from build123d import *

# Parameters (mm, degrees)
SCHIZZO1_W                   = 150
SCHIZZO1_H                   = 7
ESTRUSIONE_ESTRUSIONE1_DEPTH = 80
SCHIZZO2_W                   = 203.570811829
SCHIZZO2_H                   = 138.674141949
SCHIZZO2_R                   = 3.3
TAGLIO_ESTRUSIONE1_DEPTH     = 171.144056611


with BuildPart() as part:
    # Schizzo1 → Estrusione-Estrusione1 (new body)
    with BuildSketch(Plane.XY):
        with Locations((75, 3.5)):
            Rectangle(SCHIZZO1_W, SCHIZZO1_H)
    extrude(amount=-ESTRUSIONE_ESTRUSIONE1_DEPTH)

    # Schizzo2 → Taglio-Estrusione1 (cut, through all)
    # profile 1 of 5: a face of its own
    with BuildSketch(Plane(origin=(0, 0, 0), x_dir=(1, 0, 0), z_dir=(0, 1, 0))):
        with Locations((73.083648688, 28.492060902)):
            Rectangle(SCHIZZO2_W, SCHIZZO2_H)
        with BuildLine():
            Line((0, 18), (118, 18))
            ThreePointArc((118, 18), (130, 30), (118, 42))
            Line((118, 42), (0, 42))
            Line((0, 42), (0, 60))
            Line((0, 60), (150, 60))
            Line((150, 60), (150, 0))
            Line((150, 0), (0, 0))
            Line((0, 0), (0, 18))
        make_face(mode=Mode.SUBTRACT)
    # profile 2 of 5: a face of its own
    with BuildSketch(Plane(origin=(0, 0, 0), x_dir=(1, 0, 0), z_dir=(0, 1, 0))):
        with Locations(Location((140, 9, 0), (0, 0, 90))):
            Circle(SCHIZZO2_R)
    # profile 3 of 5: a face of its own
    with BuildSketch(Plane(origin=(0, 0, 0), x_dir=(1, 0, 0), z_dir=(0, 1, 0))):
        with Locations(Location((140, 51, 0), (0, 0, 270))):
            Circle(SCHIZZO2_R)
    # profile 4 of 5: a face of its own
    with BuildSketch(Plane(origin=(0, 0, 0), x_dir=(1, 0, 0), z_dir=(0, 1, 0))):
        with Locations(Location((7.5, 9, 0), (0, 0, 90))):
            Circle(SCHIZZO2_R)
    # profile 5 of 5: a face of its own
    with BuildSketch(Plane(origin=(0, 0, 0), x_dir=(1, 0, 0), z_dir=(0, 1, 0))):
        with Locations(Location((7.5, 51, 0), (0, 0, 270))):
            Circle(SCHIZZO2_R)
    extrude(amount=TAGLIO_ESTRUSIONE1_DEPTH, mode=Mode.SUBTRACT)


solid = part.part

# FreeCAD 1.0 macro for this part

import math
import FreeCAD as App
import Part
import Sketcher

doc = App.newDocument("Part")
body = doc.addObject("PartDesign::Body", "Body")

sketch1 = doc.addObject("Sketcher::SketchObject", "Sketch")
body.addObject(sketch1)
sketch1.AttachmentSupport = (doc.XY_Plane, [""])
sketch1.MapMode = "FlatFace"
sketch1.addGeometry(Part.LineSegment(App.Vector(0, 7, 0), App.Vector(0, 0, 0)), False)
sketch1.addGeometry(Part.LineSegment(App.Vector(0, 0, 0), App.Vector(150, 0, 0)), False)
sketch1.addGeometry(Part.LineSegment(App.Vector(150, 0, 0), App.Vector(150, 7, 0)), False)
sketch1.addGeometry(Part.LineSegment(App.Vector(150, 7, 0), App.Vector(0, 7, 0)), False)
sketch1.addConstraint(Sketcher.Constraint("Coincident", 0, 2, 1, 1))
sketch1.addConstraint(Sketcher.Constraint("Coincident", 1, 2, 2, 1))
sketch1.addConstraint(Sketcher.Constraint("Coincident", 2, 2, 3, 1))
sketch1.addConstraint(Sketcher.Constraint("Coincident", 3, 2, 0, 1))
sketch1.addConstraint(Sketcher.Constraint("Vertical", 0))
sketch1.addConstraint(Sketcher.Constraint("Horizontal", 1))
sketch1.addConstraint(Sketcher.Constraint("Vertical", 2))
sketch1.addConstraint(Sketcher.Constraint("Horizontal", 3))
sketch1.addConstraint(Sketcher.Constraint("Coincident", 0, 2, -1, 1))
sketch1.addConstraint(Sketcher.Constraint("DistanceX", 1, 1, 1, 2, 150.0))
sketch1.addConstraint(Sketcher.Constraint("DistanceY", 0, 2, 0, 1, 7.0))
pad1 = doc.addObject("PartDesign::Pad", "Pad")
body.addObject(pad1)
pad1.Profile = sketch1
pad1.Length = 80
pad1.Reversed = True

sketch2 = doc.addObject("Sketcher::SketchObject", "Sketch001")
body.addObject(sketch2)
sketch2.AttachmentSupport = (doc.XZ_Plane, [""])
sketch2.MapMode = "FlatFace"
sketch2.addGeometry(Part.LineSegment(App.Vector(-28.7, -97.8, 0), App.Vector(-28.7, 40.8, 0)), False)
sketch2.addGeometry(Part.LineSegment(App.Vector(-28.7, 40.8, 0), App.Vector(174.9, 40.8, 0)), False)
sketch2.addGeometry(Part.LineSegment(App.Vector(174.9, 40.8, 0), App.Vector(174.9, -97.8, 0)), False)
sketch2.addGeometry(Part.LineSegment(App.Vector(174.9, -97.8, 0), App.Vector(-28.7, -97.8, 0)), False)
sketch2.addGeometry(Part.LineSegment(App.Vector(0, 0, 0), App.Vector(0, -18, 0)), False)
sketch2.addGeometry(Part.LineSegment(App.Vector(0, -18, 0), App.Vector(118, -18, 0)), False)
sketch2.addGeometry(Part.ArcOfCircle(Part.Circle(App.Vector(118, -30, 0), App.Vector(0, 0, 1), 12), math.radians(-90), math.radians(90)), False)
sketch2.addGeometry(Part.LineSegment(App.Vector(118, -42, 0), App.Vector(0, -42, 0)), False)
sketch2.addGeometry(Part.LineSegment(App.Vector(0, -42, 0), App.Vector(0, -60, 0)), False)
sketch2.addGeometry(Part.LineSegment(App.Vector(0, -60, 0), App.Vector(150, -60, 0)), False)
sketch2.addGeometry(Part.LineSegment(App.Vector(150, -60, 0), App.Vector(150, 0, 0)), False)
sketch2.addGeometry(Part.LineSegment(App.Vector(150, 0, 0), App.Vector(0, 0, 0)), False)
sketch2.addGeometry(Part.Circle(App.Vector(140, -9, 0), App.Vector(0, 0, 1), 3.3), False)
sketch2.addGeometry(Part.Circle(App.Vector(140, -51, 0), App.Vector(0, 0, 1), 3.3), False)
sketch2.addGeometry(Part.Circle(App.Vector(7.5, -9, 0), App.Vector(0, 0, 1), 3.3), False)
sketch2.addGeometry(Part.Circle(App.Vector(7.5, -51, 0), App.Vector(0, 0, 1), 3.3), False)
sketch2.addConstraint(Sketcher.Constraint("Coincident", 0, 2, 1, 1))
sketch2.addConstraint(Sketcher.Constraint("Coincident", 1, 2, 2, 1))
sketch2.addConstraint(Sketcher.Constraint("Coincident", 2, 2, 3, 1))
sketch2.addConstraint(Sketcher.Constraint("Coincident", 3, 2, 0, 1))
sketch2.addConstraint(Sketcher.Constraint("Coincident", 4, 2, 5, 1))
sketch2.addConstraint(Sketcher.Constraint("Tangent", 5, 2, 6, 2))
sketch2.addConstraint(Sketcher.Constraint("Tangent", 6, 1, 7, 1))
sketch2.addConstraint(Sketcher.Constraint("Coincident", 7, 2, 8, 1))
sketch2.addConstraint(Sketcher.Constraint("Coincident", 8, 2, 9, 1))
sketch2.addConstraint(Sketcher.Constraint("Coincident", 9, 2, 10, 1))
sketch2.addConstraint(Sketcher.Constraint("Coincident", 10, 2, 11, 1))
sketch2.addConstraint(Sketcher.Constraint("Coincident", 11, 2, 4, 1))
sketch2.addConstraint(Sketcher.Constraint("Vertical", 0))
sketch2.addConstraint(Sketcher.Constraint("Horizontal", 1))
sketch2.addConstraint(Sketcher.Constraint("Vertical", 2))
sketch2.addConstraint(Sketcher.Constraint("Horizontal", 3))
sketch2.addConstraint(Sketcher.Constraint("Vertical", 4))
sketch2.addConstraint(Sketcher.Constraint("Horizontal", 5))
sketch2.addConstraint(Sketcher.Constraint("Horizontal", 7))
sketch2.addConstraint(Sketcher.Constraint("Vertical", 8))
sketch2.addConstraint(Sketcher.Constraint("Horizontal", 9))
sketch2.addConstraint(Sketcher.Constraint("Vertical", 10))
sketch2.addConstraint(Sketcher.Constraint("Horizontal", 11))
sketch2.addConstraint(Sketcher.Constraint("Coincident", 11, 2, -1, 1))
sketch2.addConstraint(Sketcher.Constraint("Equal", 12, 13))
sketch2.addConstraint(Sketcher.Constraint("Equal", 13, 14))
sketch2.addConstraint(Sketcher.Constraint("Equal", 14, 15))
sketch2.addConstraint(Sketcher.Constraint("PointOnObject", 7, 2, -2))
sketch2.addConstraint(Sketcher.Constraint("Horizontal", 12, 3, 14, 3))
sketch2.addConstraint(Sketcher.Constraint("Horizontal", 13, 3, 15, 3))
sketch2.addConstraint(Sketcher.Constraint("Vertical", 12, 3, 13, 3))
sketch2.addConstraint(Sketcher.Constraint("Vertical", 14, 3, 15, 3))
sketch2.addConstraint(Sketcher.Constraint("Equal", 4, 8))
sketch2.addConstraint(Sketcher.Constraint("Radius", 6, 12.0))
sketch2.addConstraint(Sketcher.Constraint("Diameter", 12, 6.6))
sketch2.addConstraint(Sketcher.Constraint("DistanceX", 5, 1, 5, 2, 118.0))
sketch2.addConstraint(Sketcher.Constraint("DistanceX", 9, 1, 9, 2, 150.0))
sketch2.addConstraint(Sketcher.Constraint("DistanceY", 4, 2, 4, 1, 18.0))
sketch2.addConstraint(Sketcher.Constraint("DistanceX", -1, 1, 12, 3, 140.0))
sketch2.addConstraint(Sketcher.Constraint("DistanceY", 12, 3, -1, 1, 9.0))
sketch2.addConstraint(Sketcher.Constraint("DistanceY", 13, 3, -1, 1, 51.0))
sketch2.addConstraint(Sketcher.Constraint("DistanceX", -1, 1, 14, 3, 7.5))
sketch2.addConstraint(Sketcher.Constraint("DistanceX", 1, 1, 1, 2, 203.570812))
sketch2.addConstraint(Sketcher.Constraint("DistanceY", 0, 1, 0, 2, 138.674142))
sketch2.addConstraint(Sketcher.Constraint("DistanceY", -1, 1, 0, 2, 40.84501))
sketch2.addConstraint(Sketcher.Constraint("DistanceX", 0, 2, -1, 1, 28.701757))
pocket1 = doc.addObject("PartDesign::Pocket", "Pocket")
body.addObject(pocket1)
pocket1.Profile = sketch2
pocket1.Length = 171.144057

doc.recompute()
